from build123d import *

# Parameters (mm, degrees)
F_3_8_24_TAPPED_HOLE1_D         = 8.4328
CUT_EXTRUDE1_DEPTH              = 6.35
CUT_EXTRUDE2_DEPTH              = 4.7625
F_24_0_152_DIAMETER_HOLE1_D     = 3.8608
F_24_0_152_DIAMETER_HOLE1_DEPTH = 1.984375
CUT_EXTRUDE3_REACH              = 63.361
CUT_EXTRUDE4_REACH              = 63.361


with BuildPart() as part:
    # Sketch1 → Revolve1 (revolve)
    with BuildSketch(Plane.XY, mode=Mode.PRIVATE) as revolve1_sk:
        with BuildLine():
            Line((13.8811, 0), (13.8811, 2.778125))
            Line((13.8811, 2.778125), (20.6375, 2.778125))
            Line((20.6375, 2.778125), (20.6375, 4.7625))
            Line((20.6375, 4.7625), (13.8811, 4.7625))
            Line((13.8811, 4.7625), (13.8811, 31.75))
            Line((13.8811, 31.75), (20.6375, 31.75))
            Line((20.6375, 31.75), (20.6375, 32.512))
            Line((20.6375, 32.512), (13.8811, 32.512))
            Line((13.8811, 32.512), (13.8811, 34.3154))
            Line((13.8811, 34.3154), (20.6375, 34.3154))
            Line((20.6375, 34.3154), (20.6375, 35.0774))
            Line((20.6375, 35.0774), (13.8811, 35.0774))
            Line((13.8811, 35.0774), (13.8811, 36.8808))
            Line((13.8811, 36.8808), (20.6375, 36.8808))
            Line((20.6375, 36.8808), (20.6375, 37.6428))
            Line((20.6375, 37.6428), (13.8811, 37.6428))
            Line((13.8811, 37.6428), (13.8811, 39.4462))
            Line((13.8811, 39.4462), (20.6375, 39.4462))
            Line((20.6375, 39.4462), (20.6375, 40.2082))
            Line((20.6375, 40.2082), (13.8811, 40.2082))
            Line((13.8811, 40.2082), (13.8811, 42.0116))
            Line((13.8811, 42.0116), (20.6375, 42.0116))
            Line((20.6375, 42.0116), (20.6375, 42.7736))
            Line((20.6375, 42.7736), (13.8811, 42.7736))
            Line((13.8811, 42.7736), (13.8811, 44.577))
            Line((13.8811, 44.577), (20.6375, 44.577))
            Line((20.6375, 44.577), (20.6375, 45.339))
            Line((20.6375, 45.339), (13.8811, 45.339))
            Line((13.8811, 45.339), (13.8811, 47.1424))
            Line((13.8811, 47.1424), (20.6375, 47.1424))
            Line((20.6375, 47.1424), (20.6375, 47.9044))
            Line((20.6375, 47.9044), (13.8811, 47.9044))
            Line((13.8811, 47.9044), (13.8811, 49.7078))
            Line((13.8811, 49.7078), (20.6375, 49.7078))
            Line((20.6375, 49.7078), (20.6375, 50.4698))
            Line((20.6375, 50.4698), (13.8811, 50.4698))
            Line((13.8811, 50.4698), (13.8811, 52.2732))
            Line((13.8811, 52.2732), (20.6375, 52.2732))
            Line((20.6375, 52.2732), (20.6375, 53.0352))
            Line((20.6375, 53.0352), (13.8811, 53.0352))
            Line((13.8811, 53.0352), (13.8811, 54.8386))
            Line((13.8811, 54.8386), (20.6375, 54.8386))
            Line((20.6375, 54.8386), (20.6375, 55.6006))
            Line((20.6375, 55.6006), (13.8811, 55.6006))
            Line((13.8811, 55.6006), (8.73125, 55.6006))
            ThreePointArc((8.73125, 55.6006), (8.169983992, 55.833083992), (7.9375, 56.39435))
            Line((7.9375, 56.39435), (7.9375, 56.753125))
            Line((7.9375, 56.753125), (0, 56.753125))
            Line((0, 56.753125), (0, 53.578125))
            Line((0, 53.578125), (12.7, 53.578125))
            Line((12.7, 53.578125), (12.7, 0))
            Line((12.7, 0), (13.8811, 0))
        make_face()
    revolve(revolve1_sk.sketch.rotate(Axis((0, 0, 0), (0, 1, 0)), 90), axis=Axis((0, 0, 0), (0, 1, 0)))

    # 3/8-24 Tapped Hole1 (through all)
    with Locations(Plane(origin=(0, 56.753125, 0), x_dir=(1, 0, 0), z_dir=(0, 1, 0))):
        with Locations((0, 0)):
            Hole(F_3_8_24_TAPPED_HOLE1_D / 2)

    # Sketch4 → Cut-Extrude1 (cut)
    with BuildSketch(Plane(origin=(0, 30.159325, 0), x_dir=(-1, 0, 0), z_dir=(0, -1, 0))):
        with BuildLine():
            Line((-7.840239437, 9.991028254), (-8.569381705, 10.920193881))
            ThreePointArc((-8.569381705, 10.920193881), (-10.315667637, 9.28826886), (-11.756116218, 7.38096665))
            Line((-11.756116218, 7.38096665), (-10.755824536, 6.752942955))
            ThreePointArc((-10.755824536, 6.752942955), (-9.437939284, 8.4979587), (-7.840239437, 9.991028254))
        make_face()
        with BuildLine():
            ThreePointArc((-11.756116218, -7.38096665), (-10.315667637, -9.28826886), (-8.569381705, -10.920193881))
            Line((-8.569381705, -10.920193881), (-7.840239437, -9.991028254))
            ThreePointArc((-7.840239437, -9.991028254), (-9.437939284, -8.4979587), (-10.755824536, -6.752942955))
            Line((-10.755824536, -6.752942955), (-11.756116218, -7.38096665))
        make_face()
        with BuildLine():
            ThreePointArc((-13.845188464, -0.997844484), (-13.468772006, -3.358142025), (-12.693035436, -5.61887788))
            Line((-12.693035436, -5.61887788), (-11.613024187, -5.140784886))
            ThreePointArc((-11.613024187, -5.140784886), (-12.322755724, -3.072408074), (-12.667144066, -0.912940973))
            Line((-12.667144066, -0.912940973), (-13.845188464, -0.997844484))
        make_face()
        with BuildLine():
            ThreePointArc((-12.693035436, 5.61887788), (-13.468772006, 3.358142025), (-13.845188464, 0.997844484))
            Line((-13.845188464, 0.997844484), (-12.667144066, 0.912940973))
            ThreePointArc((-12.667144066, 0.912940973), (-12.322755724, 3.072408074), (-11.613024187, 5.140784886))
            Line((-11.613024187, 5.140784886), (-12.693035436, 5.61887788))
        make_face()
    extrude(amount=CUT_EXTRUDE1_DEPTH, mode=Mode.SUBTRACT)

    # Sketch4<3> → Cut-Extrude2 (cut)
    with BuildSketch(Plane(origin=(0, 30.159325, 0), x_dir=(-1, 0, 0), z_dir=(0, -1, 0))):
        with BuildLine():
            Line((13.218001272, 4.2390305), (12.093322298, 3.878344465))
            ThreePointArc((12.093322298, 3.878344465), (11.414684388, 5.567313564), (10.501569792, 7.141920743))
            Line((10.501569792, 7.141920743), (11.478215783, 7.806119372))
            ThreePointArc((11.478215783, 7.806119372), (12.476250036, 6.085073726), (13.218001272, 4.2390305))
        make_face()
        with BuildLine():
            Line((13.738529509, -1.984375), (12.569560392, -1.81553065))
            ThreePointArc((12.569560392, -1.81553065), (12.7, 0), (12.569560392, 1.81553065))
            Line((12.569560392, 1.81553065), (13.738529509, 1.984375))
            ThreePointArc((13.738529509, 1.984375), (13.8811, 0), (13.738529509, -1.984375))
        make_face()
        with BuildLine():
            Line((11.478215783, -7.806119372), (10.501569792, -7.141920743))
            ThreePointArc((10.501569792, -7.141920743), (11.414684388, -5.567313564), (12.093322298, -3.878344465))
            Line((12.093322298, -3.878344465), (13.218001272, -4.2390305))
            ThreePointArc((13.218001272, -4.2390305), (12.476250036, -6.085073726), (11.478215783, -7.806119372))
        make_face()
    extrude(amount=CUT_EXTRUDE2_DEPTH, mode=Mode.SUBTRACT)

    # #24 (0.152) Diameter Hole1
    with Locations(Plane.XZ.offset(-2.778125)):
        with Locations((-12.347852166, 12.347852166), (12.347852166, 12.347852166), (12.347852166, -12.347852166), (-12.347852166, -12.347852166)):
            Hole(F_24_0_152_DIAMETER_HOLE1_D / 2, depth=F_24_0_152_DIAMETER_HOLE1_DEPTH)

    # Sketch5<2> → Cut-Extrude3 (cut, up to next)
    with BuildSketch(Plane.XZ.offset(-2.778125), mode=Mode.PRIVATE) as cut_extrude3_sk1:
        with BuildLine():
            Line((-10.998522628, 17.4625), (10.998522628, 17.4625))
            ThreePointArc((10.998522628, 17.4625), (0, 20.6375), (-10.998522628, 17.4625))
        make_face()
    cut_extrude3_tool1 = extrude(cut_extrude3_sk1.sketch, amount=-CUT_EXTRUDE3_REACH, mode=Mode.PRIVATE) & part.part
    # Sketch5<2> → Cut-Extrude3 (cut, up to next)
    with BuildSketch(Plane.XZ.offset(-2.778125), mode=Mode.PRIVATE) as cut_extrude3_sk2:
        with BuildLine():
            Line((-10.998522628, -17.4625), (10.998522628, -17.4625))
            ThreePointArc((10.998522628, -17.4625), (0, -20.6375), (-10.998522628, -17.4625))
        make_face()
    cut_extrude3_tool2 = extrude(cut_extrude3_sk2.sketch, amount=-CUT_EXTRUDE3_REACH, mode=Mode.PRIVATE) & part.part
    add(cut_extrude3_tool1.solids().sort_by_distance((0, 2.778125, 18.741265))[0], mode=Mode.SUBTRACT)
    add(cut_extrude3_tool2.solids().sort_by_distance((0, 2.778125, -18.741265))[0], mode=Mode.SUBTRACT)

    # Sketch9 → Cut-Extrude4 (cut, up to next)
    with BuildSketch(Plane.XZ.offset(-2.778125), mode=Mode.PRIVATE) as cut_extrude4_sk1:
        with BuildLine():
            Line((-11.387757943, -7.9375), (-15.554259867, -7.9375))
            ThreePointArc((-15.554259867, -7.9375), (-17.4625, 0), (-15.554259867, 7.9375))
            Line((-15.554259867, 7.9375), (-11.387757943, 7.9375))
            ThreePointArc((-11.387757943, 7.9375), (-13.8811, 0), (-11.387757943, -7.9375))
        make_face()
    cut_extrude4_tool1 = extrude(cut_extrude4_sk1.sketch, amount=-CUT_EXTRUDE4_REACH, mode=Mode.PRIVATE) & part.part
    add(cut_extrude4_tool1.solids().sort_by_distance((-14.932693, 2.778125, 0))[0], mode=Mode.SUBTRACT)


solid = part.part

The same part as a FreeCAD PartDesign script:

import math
import FreeCAD as App
import Part
import Sketcher
Q = App.Units.Quantity

doc = App.newDocument("Part")
body = doc.addObject("PartDesign::Body", "Body")

# Sketch on XY plane
sketch1 = body.newObject("Sketcher::SketchObject", "Sketch")
sketch1.AttachmentSupport = (doc.getObject("XY_Plane"), [""])
sketch1.MapMode = "FlatFace"
sketch1.addGeometry(Part.LineSegment(App.Vector(13.88, 0, 0), App.Vector(13.88, 2.78, 0)), False)
sketch1.addGeometry(Part.LineSegment(App.Vector(13.88, 2.78, 0), App.Vector(20.64, 2.78, 0)), False)
sketch1.addGeometry(Part.LineSegment(App.Vector(20.64, 2.78, 0), App.Vector(20.64, 4.76, 0)), False)
sketch1.addGeometry(Part.LineSegment(App.Vector(20.64, 4.76, 0), App.Vector(13.88, 4.76, 0)), False)
sketch1.addGeometry(Part.LineSegment(App.Vector(13.88, 4.76, 0), App.Vector(13.88, 31.75, 0)), False)
sketch1.addGeometry(Part.LineSegment(App.Vector(13.88, 31.75, 0), App.Vector(20.64, 31.75, 0)), False)
sketch1.addGeometry(Part.LineSegment(App.Vector(20.64, 31.75, 0), App.Vector(20.64, 32.51, 0)), False)
sketch1.addGeometry(Part.LineSegment(App.Vector(20.64, 32.51, 0), App.Vector(13.88, 32.51, 0)), False)
sketch1.addGeometry(Part.LineSegment(App.Vector(13.88, 32.51, 0), App.Vector(13.88, 34.32, 0)), False)
sketch1.addGeometry(Part.LineSegment(App.Vector(13.88, 34.32, 0), App.Vector(20.64, 34.32, 0)), False)
sketch1.addGeometry(Part.LineSegment(App.Vector(20.64, 34.32, 0), App.Vector(20.64, 35.08, 0)), False)
sketch1.addGeometry(Part.LineSegment(App.Vector(20.64, 35.08, 0), App.Vector(13.88, 35.08, 0)), False)
sketch1.addGeometry(Part.LineSegment(App.Vector(13.88, 35.08, 0), App.Vector(13.88, 36.88, 0)), False)
sketch1.addGeometry(Part.LineSegment(App.Vector(13.88, 36.88, 0), App.Vector(20.64, 36.88, 0)), False)
sketch1.addGeometry(Part.LineSegment(App.Vector(20.64, 36.88, 0), App.Vector(20.64, 37.64, 0)), False)
sketch1.addGeometry(Part.LineSegment(App.Vector(20.64, 37.64, 0), App.Vector(13.88, 37.64, 0)), False)
sketch1.addGeometry(Part.LineSegment(App.Vector(13.88, 37.64, 0), App.Vector(13.88, 39.45, 0)), False)
sketch1.addGeometry(Part.LineSegment(App.Vector(13.88, 39.45, 0), App.Vector(20.64, 39.45, 0)), False)
sketch1.addGeometry(Part.LineSegment(App.Vector(20.64, 39.45, 0), App.Vector(20.64, 40.21, 0)), False)
sketch1.addGeometry(Part.LineSegment(App.Vector(20.64, 40.21, 0), App.Vector(13.88, 40.21, 0)), False)
sketch1.addGeometry(Part.LineSegment(App.Vector(13.88, 40.21, 0), App.Vector(13.88, 42.01, 0)), False)
sketch1.addGeometry(Part.LineSegment(App.Vector(13.88, 42.01, 0), App.Vector(20.64, 42.01, 0)), False)
sketch1.addGeometry(Part.LineSegment(App.Vector(20.64, 42.01, 0), App.Vector(20.64, 42.77, 0)), False)
sketch1.addGeometry(Part.LineSegment(App.Vector(20.64, 42.77, 0), App.Vector(13.88, 42.77, 0)), False)
sketch1.addGeometry(Part.LineSegment(App.Vector(13.88, 42.77, 0), App.Vector(13.88, 44.58, 0)), False)
sketch1.addGeometry(Part.LineSegment(App.Vector(13.88, 44.58, 0), App.Vector(20.64, 44.58, 0)), False)
sketch1.addGeometry(Part.LineSegment(App.Vector(20.64, 44.58, 0), App.Vector(20.64, 45.34, 0)), False)
sketch1.addGeometry(Part.LineSegment(App.Vector(20.64, 45.34, 0), App.Vector(13.88, 45.34, 0)), False)
sketch1.addGeometry(Part.LineSegment(App.Vector(13.88, 45.34, 0), App.Vector(13.88, 47.14, 0)), False)
sketch1.addGeometry(Part.LineSegment(App.Vector(13.88, 47.14, 0), App.Vector(20.64, 47.14, 0)), False)
sketch1.addGeometry(Part.LineSegment(App.Vector(20.64, 47.14, 0), App.Vector(20.64, 47.9, 0)), False)
sketch1.addGeometry(Part.LineSegment(App.Vector(20.64, 47.9, 0), App.Vector(13.88, 47.9, 0)), False)
sketch1.addGeometry(Part.LineSegment(App.Vector(13.88, 47.9, 0), App.Vector(13.88, 49.71, 0)), False)
sketch1.addGeometry(Part.LineSegment(App.Vector(13.88, 49.71, 0), App.Vector(20.64, 49.71, 0)), False)
sketch1.addGeometry(Part.LineSegment(App.Vector(20.64, 49.71, 0), App.Vector(20.64, 50.47, 0)), False)
sketch1.addGeometry(Part.LineSegment(App.Vector(20.64, 50.47, 0), App.Vector(13.88, 50.47, 0)), False)
sketch1.addGeometry(Part.LineSegment(App.Vector(13.88, 50.47, 0), App.Vector(13.88, 52.27, 0)), False)
sketch1.addGeometry(Part.LineSegment(App.Vector(13.88, 52.27, 0), App.Vector(20.64, 52.27, 0)), False)
sketch1.addGeometry(Part.LineSegment(App.Vector(20.64, 52.27, 0), App.Vector(20.64, 53.04, 0)), False)
sketch1.addGeometry(Part.LineSegment(App.Vector(20.64, 53.04, 0), App.Vector(13.88, 53.04, 0)), False)
sketch1.addGeometry(Part.LineSegment(App.Vector(13.88, 53.04, 0), App.Vector(13.88, 54.84, 0)), False)
sketch1.addGeometry(Part.LineSegment(App.Vector(13.88, 54.84, 0), App.Vector(20.64, 54.84, 0)), False)
sketch1.addGeometry(Part.LineSegment(App.Vector(20.64, 54.84, 0), App.Vector(20.64, 55.6, 0)), False)
sketch1.addGeometry(Part.LineSegment(App.Vector(20.64, 55.6, 0), App.Vector(8.73, 55.6, 0)), False)
sketch1.addGeometry(Part.ArcOfCircle(Part.Circle(App.Vector(8.73, 56.39, 0), App.Vector(0, 0, 1), 0.79), math.radians(180), math.radians(270)), False)
sketch1.addGeometry(Part.LineSegment(App.Vector(7.94, 56.39, 0), App.Vector(7.94, 56.75, 0)), False)
sketch1.addGeometry(Part.LineSegment(App.Vector(7.94, 56.75, 0), App.Vector(0, 56.75, 0)), False)
sketch1.addGeometry(Part.LineSegment(App.Vector(0, 56.75, 0), App.Vector(0, 53.58, 0)), False)
sketch1.addGeometry(Part.LineSegment(App.Vector(0, 53.58, 0), App.Vector(12.7, 53.58, 0)), False)
sketch1.addGeometry(Part.LineSegment(App.Vector(12.7, 53.58, 0), App.Vector(12.7, 0, 0)), False)
sketch1.addGeometry(Part.LineSegment(App.Vector(12.7, 0, 0), App.Vector(13.88, 0, 0)), False)
sketch1.addConstraint(Sketcher.Constraint("Coincident", 0, 2, 1, 1))
sketch1.addConstraint(Sketcher.Constraint("Coincident", 1, 2, 2, 1))
sketch1.addConstraint(Sketcher.Constraint("Coincident", 2, 2, 3, 1))
sketch1.addConstraint(Sketcher.Constraint("Coincident", 3, 2, 4, 1))
sketch1.addConstraint(Sketcher.Constraint("Coincident", 4, 2, 5, 1))
sketch1.addConstraint(Sketcher.Constraint("Coincident", 5, 2, 6, 1))
sketch1.addConstraint(Sketcher.Constraint("Coincident", 6, 2, 7, 1))
sketch1.addConstraint(Sketcher.Constraint("Coincident", 7, 2, 8, 1))
sketch1.addConstraint(Sketcher.Constraint("Coincident", 8, 2, 9, 1))
sketch1.addConstraint(Sketcher.Constraint("Coincident", 9, 2, 10, 1))
sketch1.addConstraint(Sketcher.Constraint("Coincident", 10, 2, 11, 1))
sketch1.addConstraint(Sketcher.Constraint("Coincident", 11, 2, 12, 1))
sketch1.addConstraint(Sketcher.Constraint("Coincident", 12, 2, 13, 1))
sketch1.addConstraint(Sketcher.Constraint("Coincident", 13, 2, 14, 1))
sketch1.addConstraint(Sketcher.Constraint("Coincident", 14, 2, 15, 1))
sketch1.addConstraint(Sketcher.Constraint("Coincident", 15, 2, 16, 1))
sketch1.addConstraint(Sketcher.Constraint("Coincident", 16, 2, 17, 1))
sketch1.addConstraint(Sketcher.Constraint("Coincident", 17, 2, 18, 1))
sketch1.addConstraint(Sketcher.Constraint("Coincident", 18, 2, 19, 1))
sketch1.addConstraint(Sketcher.Constraint("Coincident", 19, 2, 20, 1))
sketch1.addConstraint(Sketcher.Constraint("Coincident", 20, 2, 21, 1))
sketch1.addConstraint(Sketcher.Constraint("Coincident", 21, 2, 22, 1))
sketch1.addConstraint(Sketcher.Constraint("Coincident", 22, 2, 23, 1))
sketch1.addConstraint(Sketcher.Constraint("Coincident", 23, 2, 24, 1))
sketch1.addConstraint(Sketcher.Constraint("Coincident", 24, 2, 25, 1))
sketch1.addConstraint(Sketcher.Constraint("Coincident", 25, 2, 26, 1))
sketch1.addConstraint(Sketcher.Constraint("Coincident", 26, 2, 27, 1))
sketch1.addConstraint(Sketcher.Constraint("Coincident", 27, 2, 28, 1))
sketch1.addConstraint(Sketcher.Constraint("Coincident", 28, 2, 29, 1))
sketch1.addConstraint(Sketcher.Constraint("Coincident", 29, 2, 30, 1))
sketch1.addConstraint(Sketcher.Constraint("Coincident", 30, 2, 31, 1))
sketch1.addConstraint(Sketcher.Constraint("Coincident", 31, 2, 32, 1))
sketch1.addConstraint(Sketcher.Constraint("Coincident", 32, 2, 33, 1))
sketch1.addConstraint(Sketcher.Constraint("Coincident", 33, 2, 34, 1))
sketch1.addConstraint(Sketcher.Constraint("Coincident", 34, 2, 35, 1))
sketch1.addConstraint(Sketcher.Constraint("Coincident", 35, 2, 36, 1))
sketch1.addConstraint(Sketcher.Constraint("Coincident", 36, 2, 37, 1))
sketch1.addConstraint(Sketcher.Constraint("Coincident", 37, 2, 38, 1))
sketch1.addConstraint(Sketcher.Constraint("Coincident", 38, 2, 39, 1))
sketch1.addConstraint(Sketcher.Constraint("Coincident", 39, 2, 40, 1))
sketch1.addConstraint(Sketcher.Constraint("Coincident", 40, 2, 41, 1))
sketch1.addConstraint(Sketcher.Constraint("Coincident", 41, 2, 42, 1))
sketch1.addConstraint(Sketcher.Constraint("Coincident", 42, 2, 43, 1))
sketch1.addConstraint(Sketcher.Constraint("Tangent", 43, 2, 44, 2))
sketch1.addConstraint(Sketcher.Constraint("Tangent", 44, 1, 45, 1))
sketch1.addConstraint(Sketcher.Constraint("Coincident", 45, 2, 46, 1))
sketch1.addConstraint(Sketcher.Constraint("Coincident", 46, 2, 47, 1))
sketch1.addConstraint(Sketcher.Constraint("Coincident", 47, 2, 48, 1))
sketch1.addConstraint(Sketcher.Constraint("Coincident", 48, 2, 49, 1))
sketch1.addConstraint(Sketcher.Constraint("Coincident", 49, 2, 50, 1))
sketch1.addConstraint(Sketcher.Constraint("Coincident", 50, 2, 0, 1))
sketch1.addConstraint(Sketcher.Constraint("Vertical", 0))
sketch1.addConstraint(Sketcher.Constraint("Horizontal", 1))
sketch1.addConstraint(Sketcher.Constraint("Vertical", 2))
sketch1.addConstraint(Sketcher.Constraint("Horizontal", 3))
sketch1.addConstraint(Sketcher.Constraint("Vertical", 4))
sketch1.addConstraint(Sketcher.Constraint("Horizontal", 5))
sketch1.addConstraint(Sketcher.Constraint("Vertical", 6))
sketch1.addConstraint(Sketcher.Constraint("Horizontal", 7))
sketch1.addConstraint(Sketcher.Constraint("Vertical", 8))
sketch1.addConstraint(Sketcher.Constraint("Horizontal", 9))
sketch1.addConstraint(Sketcher.Constraint("Vertical", 10))
sketch1.addConstraint(Sketcher.Constraint("Horizontal", 11))
sketch1.addConstraint(Sketcher.Constraint("Vertical", 12))
sketch1.addConstraint(Sketcher.Constraint("Horizontal", 13))
sketch1.addConstraint(Sketcher.Constraint("Vertical", 14))
sketch1.addConstraint(Sketcher.Constraint("Horizontal", 15))
sketch1.addConstraint(Sketcher.Constraint("Vertical", 16))
sketch1.addConstraint(Sketcher.Constraint("Horizontal", 17))
sketch1.addConstraint(Sketcher.Constraint("Vertical", 18))
sketch1.addConstraint(Sketcher.Constraint("Horizontal", 19))
sketch1.addConstraint(Sketcher.Constraint("Vertical", 20))
sketch1.addConstraint(Sketcher.Constraint("Horizontal", 21))
sketch1.addConstraint(Sketcher.Constraint("Vertical", 22))
sketch1.addConstraint(Sketcher.Constraint("Horizontal", 23))
sketch1.addConstraint(Sketcher.Constraint("Vertical", 24))
sketch1.addConstraint(Sketcher.Constraint("Horizontal", 25))
sketch1.addConstraint(Sketcher.Constraint("Vertical", 26))
sketch1.addConstraint(Sketcher.Constraint("Horizontal", 27))
sketch1.addConstraint(Sketcher.Constraint("Vertical", 28))
sketch1.addConstraint(Sketcher.Constraint("Horizontal", 29))
sketch1.addConstraint(Sketcher.Constraint("Vertical", 30))
sketch1.addConstraint(Sketcher.Constraint("Horizontal", 31))
sketch1.addConstraint(Sketcher.Constraint("Vertical", 32))
sketch1.addConstraint(Sketcher.Constraint("Horizontal", 33))
sketch1.addConstraint(Sketcher.Constraint("Vertical", 34))
sketch1.addConstraint(Sketcher.Constraint("Horizontal", 35))
sketch1.addConstraint(Sketcher.Constraint("Vertical", 36))
sketch1.addConstraint(Sketcher.Constraint("Horizontal", 37))
sketch1.addConstraint(Sketcher.Constraint("Vertical", 38))
sketch1.addConstraint(Sketcher.Constraint("Horizontal", 39))
sketch1.addConstraint(Sketcher.Constraint("Vertical", 40))
sketch1.addConstraint(Sketcher.Constraint("Horizontal", 41))
sketch1.addConstraint(Sketcher.Constraint("Vertical", 42))
sketch1.addConstraint(Sketcher.Constraint("Horizontal", 43))
sketch1.addConstraint(Sketcher.Constraint("Vertical", 45))
sketch1.addConstraint(Sketcher.Constraint("Horizontal", 46))
sketch1.addConstraint(Sketcher.Constraint("Vertical", 47))
sketch1.addConstraint(Sketcher.Constraint("Horizontal", 48))
sketch1.addConstraint(Sketcher.Constraint("Vertical", 49))
sketch1.addConstraint(Sketcher.Constraint("Horizontal", 50))
sketch1.addConstraint(Sketcher.Constraint("PointOnObject", 46, 2, -2))
sketch1.addConstraint(Sketcher.Constraint("PointOnObject", 49, 2, -1))
sketch1.addConstraint(Sketcher.Constraint("Vertical", 0, 2, 3, 2))
sketch1.addConstraint(Sketcher.Constraint("Vertical", 2, 2, 5, 2))
sketch1.addConstraint(Sketcher.Constraint("Vertical", 4, 2, 7, 2))
sketch1.addConstraint(Sketcher.Constraint("Vertical", 6, 2, 9, 2))
sketch1.addConstraint(Sketcher.Constraint("Vertical", 8, 2, 11, 2))
sketch1.addConstraint(Sketcher.Constraint("Vertical", 10, 2, 13, 2))
sketch1.addConstraint(Sketcher.Constraint("Vertical", 12, 2, 15, 2))
sketch1.addConstraint(Sketcher.Constraint("Vertical", 14, 2, 17, 2))
sketch1.addConstraint(Sketcher.Constraint("Vertical", 16, 2, 19, 2))
sketch1.addConstraint(Sketcher.Constraint("Vertical", 18, 2, 21, 2))
sketch1.addConstraint(Sketcher.Constraint("Vertical", 20, 2, 23, 2))
sketch1.addConstraint(Sketcher.Constraint("Vertical", 22, 2, 25, 2))
sketch1.addConstraint(Sketcher.Constraint("Vertical", 24, 2, 27, 2))
sketch1.addConstraint(Sketcher.Constraint("Vertical", 26, 2, 29, 2))
sketch1.addConstraint(Sketcher.Constraint("Vertical", 28, 2, 31, 2))
sketch1.addConstraint(Sketcher.Constraint("Vertical", 30, 2, 33, 2))
sketch1.addConstraint(Sketcher.Constraint("Vertical", 32, 2, 35, 2))
sketch1.addConstraint(Sketcher.Constraint("Vertical", 34, 2, 37, 2))
sketch1.addConstraint(Sketcher.Constraint("Vertical", 36, 2, 39, 2))
sketch1.addConstraint(Sketcher.Constraint("Vertical", 38, 2, 41, 2))
sketch1.addConstraint(Sketcher.Constraint("Equal", 6, 10))
sketch1.addConstraint(Sketcher.Constraint("Equal", 8, 12))
sketch1.addConstraint(Sketcher.Constraint("Equal", 10, 14))
sketch1.addConstraint(Sketcher.Constraint("Equal", 12, 16))
sketch1.addConstraint(Sketcher.Constraint("Equal", 14, 18))
sketch1.addConstraint(Sketcher.Constraint("Equal", 16, 20))
sketch1.addConstraint(Sketcher.Constraint("Equal", 18, 22))
sketch1.addConstraint(Sketcher.Constraint("Equal", 20, 24))
sketch1.addConstraint(Sketcher.Constraint("Equal", 22, 26))
sketch1.addConstraint(Sketcher.Constraint("Equal", 24, 28))
sketch1.addConstraint(Sketcher.Constraint("Equal", 26, 30))
sketch1.addConstraint(Sketcher.Constraint("Equal", 28, 32))
sketch1.addConstraint(Sketcher.Constraint("Equal", 30, 34))
sketch1.addConstraint(Sketcher.Constraint("Equal", 32, 36))
sketch1.addConstraint(Sketcher.Constraint("Equal", 34, 38))
sketch1.addConstraint(Sketcher.Constraint("Equal", 36, 40))
sketch1.addConstraint(Sketcher.Constraint("Equal", 38, 42))
sketch1.addConstraint(Sketcher.Constraint("DistanceX", 48, 1, 48, 2, Q("0.5 in")))
sketch1.addConstraint(Sketcher.Constraint("Radius", 44, Q("0.03125 in")))
sketch1.addConstraint(Sketcher.Constraint("DistanceY", 6, 1, 6, 2, Q("0.03 in")))
sketch1.addConstraint(Sketcher.Constraint("DistanceX", 1, 1, 1, 2, Q("0.266 in")))
sketch1.addConstraint(Sketcher.Constraint("DistanceX", 43, 2, 43, 1, Q("0.46875 in")))
sketch1.addConstraint(Sketcher.Constraint("DistanceX", 46, 2, 46, 1, Q("0.3125 in")))
sketch1.addConstraint(Sketcher.Constraint("DistanceY", 0, 1, 0, 2, Q("0.109375 in")))
sketch1.addConstraint(Sketcher.Constraint("DistanceY", 2, 1, 2, 2, Q("0.078125 in")))
sketch1.addConstraint(Sketcher.Constraint("DistanceY", 4, 1, 4, 2, Q("1.0625 in")))
sketch1.addConstraint(Sketcher.Constraint("DistanceY", 8, 1, 8, 2, Q("0.071 in")))
sketch1.addConstraint(Sketcher.Constraint("DistanceY", 47, 2, 47, 1, Q("0.125 in")))
sketch1.addConstraint(Sketcher.Constraint("DistanceY", 49, 2, 49, 1, Q("2.109375 in")))
revolution = body.newObject("PartDesign::Revolution", "Revolution")
revolution.Profile = sketch1
revolution.ReferenceAxis = (sketch1, ["V_Axis"])
revolution.Angle = 360

# Sketch on XZ plane
sketch2 = body.newObject("Sketcher::SketchObject", "Sketch001")
sketch2.AttachmentSupport = (doc.getObject("XZ_Plane"), [""])
sketch2.MapMode = "FlatFace"
sketch2.AttachmentOffset = App.Placement(App.Vector(0, 0, -2.234375 * 25.4), App.Rotation())
sketch2.addGeometry(Part.Circle(App.Vector(0, 0, 0), App.Vector(0, 0, 1), 4.2), False)
sketch2.addConstraint(Sketcher.Constraint("Coincident", 0, 3, -1, 1))
sketch2.addConstraint(Sketcher.Constraint("Diameter", 0, Q("0.332 in")))
doc.recompute()
hole = body.newObject("PartDesign::Hole", "Hole")
hole.Profile = sketch2
hole.ThreadType = "None"
hole.Diameter = Q("0.332 in")
hole.DepthType = "ThroughAll"
hole.Reversed = True

# Sketch on XZ plane
sketch3 = body.newObject("Sketcher::SketchObject", "Sketch002")
sketch3.AttachmentSupport = (doc.getObject("XZ_Plane"), [""])
sketch3.MapMode = "FlatFace"
sketch3.AttachmentOffset = App.Placement(App.Vector(0, 0, -30.159325), App.Rotation())
sketch3.addGeometry(Part.LineSegment(App.Vector(7.8, -10, 0), App.Vector(8.6, -10.9, 0)), False)
sketch3.addGeometry(Part.ArcOfCircle(Part.Circle(App.Vector(0, 0, 0), App.Vector(0, 0, 1), 13.9), math.radians(-51.88), math.radians(-32.12)), False)
sketch3.addGeometry(Part.LineSegment(App.Vector(11.8, -7.4, 0), App.Vector(10.8, -6.8, 0)), False)
sketch3.addGeometry(Part.ArcOfCircle(Part.Circle(App.Vector(0, 0, 0), App.Vector(0, 0, 1), 12.7), math.radians(-51.88), math.radians(-32.12)), False)
sketch3.addGeometry(Part.ArcOfCircle(Part.Circle(App.Vector(0, 0, 0), App.Vector(0, 0, 1), 13.9), math.radians(32.12), math.radians(51.88)), False)
sketch3.addGeometry(Part.LineSegment(App.Vector(8.6, 10.9, 0), App.Vector(7.8, 10, 0)), False)
sketch3.addGeometry(Part.ArcOfCircle(Part.Circle(App.Vector(0, 0, 0), App.Vector(0, 0, 1), 12.7), math.radians(32.12), math.radians(51.88)), False)
sketch3.addGeometry(Part.LineSegment(App.Vector(10.8, 6.8, 0), App.Vector(11.8, 7.4, 0)), False)
sketch3.addGeometry(Part.ArcOfCircle(Part.Circle(App.Vector(0, 0, 0), App.Vector(0, 0, 1), 13.9), math.radians(4.12), math.radians(23.88)), False)
sketch3.addGeometry(Part.LineSegment(App.Vector(12.7, 5.6, 0), App.Vector(11.6, 5.1, 0)), False)
sketch3.addGeometry(Part.ArcOfCircle(Part.Circle(App.Vector(0, 0, 0), App.Vector(0, 0, 1), 12.7), math.radians(4.12), math.radians(23.88)), False)
sketch3.addGeometry(Part.LineSegment(App.Vector(12.7, 0.9, 0), App.Vector(13.8, 1, 0)), False)
sketch3.addGeometry(Part.ArcOfCircle(Part.Circle(App.Vector(0, 0, 0), App.Vector(0, 0, 1), 13.9), math.radians(-23.88), math.radians(-4.12)), False)
sketch3.addGeometry(Part.LineSegment(App.Vector(13.8, -1, 0), App.Vector(12.7, -0.9, 0)), False)
sketch3.addGeometry(Part.ArcOfCircle(Part.Circle(App.Vector(0, 0, 0), App.Vector(0, 0, 1), 12.7), math.radians(-23.88), math.radians(-4.12)), False)
sketch3.addGeometry(Part.LineSegment(App.Vector(11.6, -5.1, 0), App.Vector(12.7, -5.6, 0)), False)
sketch3.addConstraint(Sketcher.Constraint("Coincident", 0, 2, 1, 1))
sketch3.addConstraint(Sketcher.Constraint("Coincident", 1, 2, 2, 1))
sketch3.addConstraint(Sketcher.Constraint("Coincident", 2, 2, 3, 2))
sketch3.addConstraint(Sketcher.Constraint("Coincident", 3, 1, 0, 1))
sketch3.addConstraint(Sketcher.Constraint("Coincident", 4, 2, 5, 1))
sketch3.addConstraint(Sketcher.Constraint("Coincident", 5, 2, 6, 2))
sketch3.addConstraint(Sketcher.Constraint("Coincident", 6, 1, 7, 1))
sketch3.addConstraint(Sketcher.Constraint("Coincident", 7, 2, 4, 1))
sketch3.addConstraint(Sketcher.Constraint("Coincident", 8, 2, 9, 1))
sketch3.addConstraint(Sketcher.Constraint("Coincident", 9, 2, 10, 2))
sketch3.addConstraint(Sketcher.Constraint("Coincident", 10, 1, 11, 1))
sketch3.addConstraint(Sketcher.Constraint("Coincident", 11, 2, 8, 1))
sketch3.addConstraint(Sketcher.Constraint("Coincident", 12, 2, 13, 1))
sketch3.addConstraint(Sketcher.Constraint("Coincident", 13, 2, 14, 2))
sketch3.addConstraint(Sketcher.Constraint("Coincident", 14, 1, 15, 1))
sketch3.addConstraint(Sketcher.Constraint("Coincident", 15, 2, 12, 1))
sketch3.addConstraint(Sketcher.Constraint("Coincident", 1, 3, -1, 1))
sketch3.addConstraint(Sketcher.Constraint("Coincident", 3, 3, -1, 1))
sketch3.addConstraint(Sketcher.Constraint("Coincident", 4, 3, -1, 1))
sketch3.addConstraint(Sketcher.Constraint("Coincident", 6, 3, -1, 1))
sketch3.addConstraint(Sketcher.Constraint("Coincident", 8, 3, -1, 1))
sketch3.addConstraint(Sketcher.Constraint("Coincident", 10, 3, -1, 1))
sketch3.addConstraint(Sketcher.Constraint("Coincident", 12, 3, -1, 1))
sketch3.addConstraint(Sketcher.Constraint("Coincident", 14, 3, -1, 1))
sketch3.addConstraint(Sketcher.Constraint("Equal", 1, 4))
sketch3.addConstraint(Sketcher.Constraint("Equal", 3, 6))
sketch3.addConstraint(Sketcher.Constraint("Equal", 4, 8))
sketch3.addConstraint(Sketcher.Constraint("Equal", 6, 10))
sketch3.addConstraint(Sketcher.Constraint("Equal", 8, 12))
sketch3.addConstraint(Sketcher.Constraint("Equal", 10, 14))
sketch3.addConstraint(Sketcher.Constraint("Vertical", 0, 2, 4, 2))
sketch3.addConstraint(Sketcher.Constraint("Vertical", 3, 1, 5, 2))
sketch3.addConstraint(Sketcher.Constraint("Vertical", 2, 2, 6, 1))
sketch3.addConstraint(Sketcher.Constraint("Vertical", 1, 2, 7, 2))
sketch3.addConstraint(Sketcher.Constraint("Vertical", 11, 2, 12, 2))
sketch3.addConstraint(Sketcher.Constraint("Vertical", 10, 1, 13, 2))
sketch3.addConstraint(Sketcher.Constraint("Vertical", 9, 2, 14, 1))
sketch3.addConstraint(Sketcher.Constraint("Vertical", 8, 2, 15, 2))
sketch3.addConstraint(Sketcher.Constraint("Radius", 3, Q("0.5 in")))
sketch3.addConstraint(Sketcher.Constraint("Radius", 1, Q("0.5465 in")))
sketch3.addConstraint(Sketcher.Constraint("DistanceX", 6, 1, 9, 2, 0.8572))
sketch3.addConstraint(Sketcher.Constraint("DistanceY", 10, 1, 6, 1, 5.840002))
sketch3.addConstraint(Sketcher.Constraint("DistanceY", 11, 2, 6, 1, 5.755098))
sketch3.addConstraint(Sketcher.Constraint("DistanceX", -1, 1, 0, 2, 8.569382))
sketch3.addConstraint(Sketcher.Constraint("DistanceX", -1, 1, 3, 1, 7.840239))
sketch3.addConstraint(Sketcher.Constraint("DistanceY", -1, 1, 10, 1, 0.912941))
sketch3.addConstraint(Sketcher.Constraint("DistanceX", 2, 2, 1, 2, 1.000292))
sketch3.addConstraint(Sketcher.Constraint("DistanceX", 7, 2, 8, 2, 0.936919))
pocket1 = body.newObject("PartDesign::Pocket", "Pocket")
pocket1.Profile = sketch3
pocket1.Length = Q("0.25 in")
pocket1.Reversed = True

# Sketch on XZ plane
sketch4 = body.newObject("Sketcher::SketchObject", "Sketch003")
sketch4.AttachmentSupport = (doc.getObject("XZ_Plane"), [""])
sketch4.MapMode = "FlatFace"
sketch4.AttachmentOffset = App.Placement(App.Vector(0, 0, -30.159325), App.Rotation())
sketch4.addGeometry(Part.LineSegment(App.Vector(-12.1, -3.9, 0), App.Vector(-13.2, -4.2, 0)), False)
sketch4.addGeometry(Part.ArcOfCircle(Part.Circle(App.Vector(0, 0, 0), App.Vector(0, 0, 1), 13.9), math.radians(-162.22), math.radians(-145.78)), False)
sketch4.addGeometry(Part.LineSegment(App.Vector(-11.5, -7.8, 0), App.Vector(-10.5, -7.1, 0)), False)
sketch4.addGeometry(Part.ArcOfCircle(Part.Circle(App.Vector(0, 0, 0), App.Vector(0, 0, 1), 12.7), math.radians(-162.22), math.radians(-145.78)), False)
sketch4.addGeometry(Part.LineSegment(App.Vector(-12.6, 1.8, 0), App.Vector(-13.7, 2, 0)), False)
sketch4.addGeometry(Part.ArcOfCircle(Part.Circle(App.Vector(0, 0, 0), App.Vector(0, 0, 1), 13.9), math.radians(171.78), math.radians(188.22)), False)
sketch4.addGeometry(Part.LineSegment(App.Vector(-13.7, -2, 0), App.Vector(-12.6, -1.8, 0)), False)
sketch4.addGeometry(Part.ArcOfCircle(Part.Circle(App.Vector(0, 0, 0), App.Vector(0, 0, 1), 12.7), math.radians(171.78), math.radians(188.22)), False)
sketch4.addGeometry(Part.LineSegment(App.Vector(-10.5, 7.1, 0), App.Vector(-11.5, 7.8, 0)), False)
sketch4.addGeometry(Part.ArcOfCircle(Part.Circle(App.Vector(0, 0, 0), App.Vector(0, 0, 1), 13.9), math.radians(145.78), math.radians(162.22)), False)
sketch4.addGeometry(Part.LineSegment(App.Vector(-13.2, 4.2, 0), App.Vector(-12.1, 3.9, 0)), False)
sketch4.addGeometry(Part.ArcOfCircle(Part.Circle(App.Vector(0, 0, 0), App.Vector(0, 0, 1), 12.7), math.radians(145.78), math.radians(162.22)), False)
sketch4.addConstraint(Sketcher.Constraint("Coincident", 0, 2, 1, 1))
sketch4.addConstraint(Sketcher.Constraint("Coincident", 1, 2, 2, 1))
sketch4.addConstraint(Sketcher.Constraint("Coincident", 2, 2, 3, 2))
sketch4.addConstraint(Sketcher.Constraint("Coincident", 3, 1, 0, 1))
sketch4.addConstraint(Sketcher.Constraint("Coincident", 4, 2, 5, 1))
sketch4.addConstraint(Sketcher.Constraint("Coincident", 5, 2, 6, 1))
sketch4.addConstraint(Sketcher.Constraint("Coincident", 6, 2, 7, 2))
sketch4.addConstraint(Sketcher.Constraint("Coincident", 7, 1, 4, 1))
sketch4.addConstraint(Sketcher.Constraint("Coincident", 8, 2, 9, 1))
sketch4.addConstraint(Sketcher.Constraint("Coincident", 9, 2, 10, 1))
sketch4.addConstraint(Sketcher.Constraint("Coincident", 10, 2, 11, 2))
sketch4.addConstraint(Sketcher.Constraint("Coincident", 11, 1, 8, 1))
sketch4.addConstraint(Sketcher.Constraint("Coincident", 1, 3, -1, 1))
sketch4.addConstraint(Sketcher.Constraint("Coincident", 3, 3, -1, 1))
sketch4.addConstraint(Sketcher.Constraint("Coincident", 5, 3, -1, 1))
sketch4.addConstraint(Sketcher.Constraint("Coincident", 7, 3, -1, 1))
sketch4.addConstraint(Sketcher.Constraint("Coincident", 9, 3, -1, 1))
sketch4.addConstraint(Sketcher.Constraint("Coincident", 11, 3, -1, 1))
sketch4.addConstraint(Sketcher.Constraint("Equal", 1, 5))
sketch4.addConstraint(Sketcher.Constraint("Equal", 3, 7))
sketch4.addConstraint(Sketcher.Constraint("Equal", 5, 9))
sketch4.addConstraint(Sketcher.Constraint("Equal", 7, 11))
sketch4.addConstraint(Sketcher.Constraint("Vertical", 4, 2, 5, 2))
sketch4.addConstraint(Sketcher.Constraint("Vertical", 6, 2, 7, 1))
sketch4.addConstraint(Sketcher.Constraint("Vertical", 1, 2, 8, 2))
sketch4.addConstraint(Sketcher.Constraint("Vertical", 0, 2, 9, 2))
sketch4.addConstraint(Sketcher.Constraint("Vertical", 3, 1, 10, 2))
sketch4.addConstraint(Sketcher.Constraint("Vertical", 2, 2, 11, 1))
sketch4.addConstraint(Sketcher.Constraint("Radius", 3, Q("0.5 in")))
sketch4.addConstraint(Sketcher.Constraint("Radius", 1, Q("0.5465 in")))
sketch4.addConstraint(Sketcher.Constraint("DistanceY", -1, 1, 4, 2, Q("0.078125 in")))
sketch4.addConstraint(Sketcher.Constraint("DistanceX", 0, 2, -1, 1, 13.218001))
sketch4.addConstraint(Sketcher.Constraint("DistanceY", 1, 2, 2, 2, 0.664199))
sketch4.addConstraint(Sketcher.Constraint("DistanceY", 0, 2, 6, 2, 2.4235))
sketch4.addConstraint(Sketcher.Constraint("DistanceY", 1, 2, -1, 1, 7.806119))
sketch4.addConstraint(Sketcher.Constraint("DistanceX", 0, 2, 3, 1, 1.124679))
pocket2 = body.newObject("PartDesign::Pocket", "Pocket001")
pocket2.Profile = sketch4
pocket2.Length = Q("0.1875 in")
pocket2.Reversed = True

# Sketch on XZ plane
sketch5 = body.newObject("Sketcher::SketchObject", "Sketch004")
sketch5.AttachmentSupport = (doc.getObject("XZ_Plane"), [""])
sketch5.MapMode = "FlatFace"
sketch5.AttachmentOffset = App.Placement(App.Vector(0, 0, -0.109375 * 25.4), App.Rotation())
sketch5.addGeometry(Part.Circle(App.Vector(-12.3, 12.3, 0), App.Vector(0, 0, 1), 1.9), False)
sketch5.addGeometry(Part.Circle(App.Vector(12.3, 12.3, 0), App.Vector(0, 0, 1), 1.9), False)
sketch5.addGeometry(Part.Circle(App.Vector(12.3, -12.3, 0), App.Vector(0, 0, 1), 1.9), False)
sketch5.addGeometry(Part.Circle(App.Vector(-12.3, -12.3, 0), App.Vector(0, 0, 1), 1.9), False)
sketch5.addConstraint(Sketcher.Constraint("Equal", 0, 1))
sketch5.addConstraint(Sketcher.Constraint("Equal", 1, 2))
sketch5.addConstraint(Sketcher.Constraint("Equal", 2, 3))
sketch5.addConstraint(Sketcher.Constraint("Symmetric", 0, 3, 2, 3, -1, 1))
sketch5.addConstraint(Sketcher.Constraint("Symmetric", 1, 3, 3, 3, -1, 1))
sketch5.addConstraint(Sketcher.Constraint("Symmetric", 0, 3, 1, 3, -2))
sketch5.addConstraint(Sketcher.Constraint("Diameter", 0, Q("0.152 in")))
sketch5.addConstraint(Sketcher.Constraint("DistanceX", 0, 3, -1, 1, 12.347852))
sketch5.addConstraint(Sketcher.Constraint("DistanceY", -1, 1, 0, 3, 12.347852))
doc.recompute()
hole2 = body.newObject("PartDesign::Hole", "Hole001")
hole2.Profile = sketch5
hole2.ThreadType = "None"
hole2.Diameter = Q("0.152 in")
hole2.DepthType = "Dimension"
hole2.Depth = Q("0.078125 in")
hole2.DrillPoint = "Flat"

# Sketch on XZ plane
sketch6 = body.newObject("Sketcher::SketchObject", "Sketch005")
sketch6.AttachmentSupport = (doc.getObject("XZ_Plane"), [""])
sketch6.MapMode = "FlatFace"
sketch6.AttachmentOffset = App.Placement(App.Vector(0, 0, -0.109375 * 25.4), App.Rotation())
sketch6.addGeometry(Part.LineSegment(App.Vector(-11, 17, 0), App.Vector(11, 17, 0)), False)
sketch6.addGeometry(Part.ArcOfCircle(Part.Circle(App.Vector(0, 0, 0), App.Vector(0, 0, 1), 21), math.radians(58), math.radians(122)), False)
sketch6.addConstraint(Sketcher.Constraint("Coincident", 0, 1, 1, 2))
sketch6.addConstraint(Sketcher.Constraint("Coincident", 1, 1, 0, 2))
sketch6.addConstraint(Sketcher.Constraint("Horizontal", 0))
sketch6.addConstraint(Sketcher.Constraint("Coincident", 1, 3, -1, 1))
sketch6.addConstraint(Sketcher.Constraint("Radius", 1, Q("0.8125 in")))
sketch6.addConstraint(Sketcher.Constraint("DistanceY", -1, 1, 0, 1, Q("0.6875 in")))
pocket3 = body.newObject("PartDesign::Pocket", "Pocket002")
pocket3.Profile = sketch6
pocket3.Type = "UpToFirst"

# Sketch on XZ plane
sketch7 = body.newObject("Sketcher::SketchObject", "Sketch006")
sketch7.AttachmentSupport = (doc.getObject("XZ_Plane"), [""])
sketch7.MapMode = "FlatFace"
sketch7.AttachmentOffset = App.Placement(App.Vector(0, 0, -0.109375 * 25.4), App.Rotation())
sketch7.addGeometry(Part.LineSegment(App.Vector(11, -17, 0), App.Vector(-11, -17, 0)), False)
sketch7.addGeometry(Part.ArcOfCircle(Part.Circle(App.Vector(0, 0, 0), App.Vector(0, 0, 1), 21), math.radians(-122), math.radians(-58)), False)
sketch7.addConstraint(Sketcher.Constraint("Coincident", 0, 1, 1, 2))
sketch7.addConstraint(Sketcher.Constraint("Coincident", 1, 1, 0, 2))
sketch7.addConstraint(Sketcher.Constraint("Horizontal", 0))
sketch7.addConstraint(Sketcher.Constraint("Coincident", 1, 3, -1, 1))
sketch7.addConstraint(Sketcher.Constraint("Radius", 1, Q("0.8125 in")))
sketch7.addConstraint(Sketcher.Constraint("DistanceY", 0, 1, -1, 1, Q("0.6875 in")))
pocket4 = body.newObject("PartDesign::Pocket", "Pocket003")
pocket4.Profile = sketch7
pocket4.Type = "UpToFirst"

# Sketch on XZ plane
sketch8 = body.newObject("Sketcher::SketchObject", "Sketch007")
sketch8.AttachmentSupport = (doc.getObject("XZ_Plane"), [""])
sketch8.MapMode = "FlatFace"
sketch8.AttachmentOffset = App.Placement(App.Vector(0, 0, -0.109375 * 25.4), App.Rotation())
sketch8.addGeometry(Part.LineSegment(App.Vector(-15.6, -7.9, 0), App.Vector(-11.4, -7.9, 0)), False)
sketch8.addGeometry(Part.ArcOfCircle(Part.Circle(App.Vector(0, 0, 0), App.Vector(0, 0, 1), 13.9), math.radians(145), math.radians(215)), False)
sketch8.addGeometry(Part.LineSegment(App.Vector(-11.4, 7.9, 0), App.Vector(-15.6, 7.9, 0)), False)
sketch8.addGeometry(Part.ArcOfCircle(Part.Circle(App.Vector(0, 0, 0), App.Vector(0, 0, 1), 17.5), math.radians(153), math.radians(207)), False)
sketch8.addConstraint(Sketcher.Constraint("Coincident", 0, 2, 1, 2))
sketch8.addConstraint(Sketcher.Constraint("Coincident", 1, 1, 2, 1))
sketch8.addConstraint(Sketcher.Constraint("Coincident", 2, 2, 3, 1))
sketch8.addConstraint(Sketcher.Constraint("Coincident", 3, 2, 0, 1))
sketch8.addConstraint(Sketcher.Constraint("Horizontal", 0))
sketch8.addConstraint(Sketcher.Constraint("Horizontal", 2))
sketch8.addConstraint(Sketcher.Constraint("Coincident", 1, 3, -1, 1))
sketch8.addConstraint(Sketcher.Constraint("Coincident", 3, 3, -1, 1))
sketch8.addConstraint(Sketcher.Constraint("Vertical", 0, 2, 1, 1))
sketch8.addConstraint(Sketcher.Constraint("Radius", 3, Q("0.6875 in")))
sketch8.addConstraint(Sketcher.Constraint("Radius", 1, Q("0.5465 in")))
sketch8.addConstraint(Sketcher.Constraint("DistanceY", 0, 2, -1, 1, Q("0.3125 in")))
pocket5 = body.newObject("PartDesign::Pocket", "Pocket004")
pocket5.Profile = sketch8
pocket5.Type = "UpToFirst"

doc.recompute()
